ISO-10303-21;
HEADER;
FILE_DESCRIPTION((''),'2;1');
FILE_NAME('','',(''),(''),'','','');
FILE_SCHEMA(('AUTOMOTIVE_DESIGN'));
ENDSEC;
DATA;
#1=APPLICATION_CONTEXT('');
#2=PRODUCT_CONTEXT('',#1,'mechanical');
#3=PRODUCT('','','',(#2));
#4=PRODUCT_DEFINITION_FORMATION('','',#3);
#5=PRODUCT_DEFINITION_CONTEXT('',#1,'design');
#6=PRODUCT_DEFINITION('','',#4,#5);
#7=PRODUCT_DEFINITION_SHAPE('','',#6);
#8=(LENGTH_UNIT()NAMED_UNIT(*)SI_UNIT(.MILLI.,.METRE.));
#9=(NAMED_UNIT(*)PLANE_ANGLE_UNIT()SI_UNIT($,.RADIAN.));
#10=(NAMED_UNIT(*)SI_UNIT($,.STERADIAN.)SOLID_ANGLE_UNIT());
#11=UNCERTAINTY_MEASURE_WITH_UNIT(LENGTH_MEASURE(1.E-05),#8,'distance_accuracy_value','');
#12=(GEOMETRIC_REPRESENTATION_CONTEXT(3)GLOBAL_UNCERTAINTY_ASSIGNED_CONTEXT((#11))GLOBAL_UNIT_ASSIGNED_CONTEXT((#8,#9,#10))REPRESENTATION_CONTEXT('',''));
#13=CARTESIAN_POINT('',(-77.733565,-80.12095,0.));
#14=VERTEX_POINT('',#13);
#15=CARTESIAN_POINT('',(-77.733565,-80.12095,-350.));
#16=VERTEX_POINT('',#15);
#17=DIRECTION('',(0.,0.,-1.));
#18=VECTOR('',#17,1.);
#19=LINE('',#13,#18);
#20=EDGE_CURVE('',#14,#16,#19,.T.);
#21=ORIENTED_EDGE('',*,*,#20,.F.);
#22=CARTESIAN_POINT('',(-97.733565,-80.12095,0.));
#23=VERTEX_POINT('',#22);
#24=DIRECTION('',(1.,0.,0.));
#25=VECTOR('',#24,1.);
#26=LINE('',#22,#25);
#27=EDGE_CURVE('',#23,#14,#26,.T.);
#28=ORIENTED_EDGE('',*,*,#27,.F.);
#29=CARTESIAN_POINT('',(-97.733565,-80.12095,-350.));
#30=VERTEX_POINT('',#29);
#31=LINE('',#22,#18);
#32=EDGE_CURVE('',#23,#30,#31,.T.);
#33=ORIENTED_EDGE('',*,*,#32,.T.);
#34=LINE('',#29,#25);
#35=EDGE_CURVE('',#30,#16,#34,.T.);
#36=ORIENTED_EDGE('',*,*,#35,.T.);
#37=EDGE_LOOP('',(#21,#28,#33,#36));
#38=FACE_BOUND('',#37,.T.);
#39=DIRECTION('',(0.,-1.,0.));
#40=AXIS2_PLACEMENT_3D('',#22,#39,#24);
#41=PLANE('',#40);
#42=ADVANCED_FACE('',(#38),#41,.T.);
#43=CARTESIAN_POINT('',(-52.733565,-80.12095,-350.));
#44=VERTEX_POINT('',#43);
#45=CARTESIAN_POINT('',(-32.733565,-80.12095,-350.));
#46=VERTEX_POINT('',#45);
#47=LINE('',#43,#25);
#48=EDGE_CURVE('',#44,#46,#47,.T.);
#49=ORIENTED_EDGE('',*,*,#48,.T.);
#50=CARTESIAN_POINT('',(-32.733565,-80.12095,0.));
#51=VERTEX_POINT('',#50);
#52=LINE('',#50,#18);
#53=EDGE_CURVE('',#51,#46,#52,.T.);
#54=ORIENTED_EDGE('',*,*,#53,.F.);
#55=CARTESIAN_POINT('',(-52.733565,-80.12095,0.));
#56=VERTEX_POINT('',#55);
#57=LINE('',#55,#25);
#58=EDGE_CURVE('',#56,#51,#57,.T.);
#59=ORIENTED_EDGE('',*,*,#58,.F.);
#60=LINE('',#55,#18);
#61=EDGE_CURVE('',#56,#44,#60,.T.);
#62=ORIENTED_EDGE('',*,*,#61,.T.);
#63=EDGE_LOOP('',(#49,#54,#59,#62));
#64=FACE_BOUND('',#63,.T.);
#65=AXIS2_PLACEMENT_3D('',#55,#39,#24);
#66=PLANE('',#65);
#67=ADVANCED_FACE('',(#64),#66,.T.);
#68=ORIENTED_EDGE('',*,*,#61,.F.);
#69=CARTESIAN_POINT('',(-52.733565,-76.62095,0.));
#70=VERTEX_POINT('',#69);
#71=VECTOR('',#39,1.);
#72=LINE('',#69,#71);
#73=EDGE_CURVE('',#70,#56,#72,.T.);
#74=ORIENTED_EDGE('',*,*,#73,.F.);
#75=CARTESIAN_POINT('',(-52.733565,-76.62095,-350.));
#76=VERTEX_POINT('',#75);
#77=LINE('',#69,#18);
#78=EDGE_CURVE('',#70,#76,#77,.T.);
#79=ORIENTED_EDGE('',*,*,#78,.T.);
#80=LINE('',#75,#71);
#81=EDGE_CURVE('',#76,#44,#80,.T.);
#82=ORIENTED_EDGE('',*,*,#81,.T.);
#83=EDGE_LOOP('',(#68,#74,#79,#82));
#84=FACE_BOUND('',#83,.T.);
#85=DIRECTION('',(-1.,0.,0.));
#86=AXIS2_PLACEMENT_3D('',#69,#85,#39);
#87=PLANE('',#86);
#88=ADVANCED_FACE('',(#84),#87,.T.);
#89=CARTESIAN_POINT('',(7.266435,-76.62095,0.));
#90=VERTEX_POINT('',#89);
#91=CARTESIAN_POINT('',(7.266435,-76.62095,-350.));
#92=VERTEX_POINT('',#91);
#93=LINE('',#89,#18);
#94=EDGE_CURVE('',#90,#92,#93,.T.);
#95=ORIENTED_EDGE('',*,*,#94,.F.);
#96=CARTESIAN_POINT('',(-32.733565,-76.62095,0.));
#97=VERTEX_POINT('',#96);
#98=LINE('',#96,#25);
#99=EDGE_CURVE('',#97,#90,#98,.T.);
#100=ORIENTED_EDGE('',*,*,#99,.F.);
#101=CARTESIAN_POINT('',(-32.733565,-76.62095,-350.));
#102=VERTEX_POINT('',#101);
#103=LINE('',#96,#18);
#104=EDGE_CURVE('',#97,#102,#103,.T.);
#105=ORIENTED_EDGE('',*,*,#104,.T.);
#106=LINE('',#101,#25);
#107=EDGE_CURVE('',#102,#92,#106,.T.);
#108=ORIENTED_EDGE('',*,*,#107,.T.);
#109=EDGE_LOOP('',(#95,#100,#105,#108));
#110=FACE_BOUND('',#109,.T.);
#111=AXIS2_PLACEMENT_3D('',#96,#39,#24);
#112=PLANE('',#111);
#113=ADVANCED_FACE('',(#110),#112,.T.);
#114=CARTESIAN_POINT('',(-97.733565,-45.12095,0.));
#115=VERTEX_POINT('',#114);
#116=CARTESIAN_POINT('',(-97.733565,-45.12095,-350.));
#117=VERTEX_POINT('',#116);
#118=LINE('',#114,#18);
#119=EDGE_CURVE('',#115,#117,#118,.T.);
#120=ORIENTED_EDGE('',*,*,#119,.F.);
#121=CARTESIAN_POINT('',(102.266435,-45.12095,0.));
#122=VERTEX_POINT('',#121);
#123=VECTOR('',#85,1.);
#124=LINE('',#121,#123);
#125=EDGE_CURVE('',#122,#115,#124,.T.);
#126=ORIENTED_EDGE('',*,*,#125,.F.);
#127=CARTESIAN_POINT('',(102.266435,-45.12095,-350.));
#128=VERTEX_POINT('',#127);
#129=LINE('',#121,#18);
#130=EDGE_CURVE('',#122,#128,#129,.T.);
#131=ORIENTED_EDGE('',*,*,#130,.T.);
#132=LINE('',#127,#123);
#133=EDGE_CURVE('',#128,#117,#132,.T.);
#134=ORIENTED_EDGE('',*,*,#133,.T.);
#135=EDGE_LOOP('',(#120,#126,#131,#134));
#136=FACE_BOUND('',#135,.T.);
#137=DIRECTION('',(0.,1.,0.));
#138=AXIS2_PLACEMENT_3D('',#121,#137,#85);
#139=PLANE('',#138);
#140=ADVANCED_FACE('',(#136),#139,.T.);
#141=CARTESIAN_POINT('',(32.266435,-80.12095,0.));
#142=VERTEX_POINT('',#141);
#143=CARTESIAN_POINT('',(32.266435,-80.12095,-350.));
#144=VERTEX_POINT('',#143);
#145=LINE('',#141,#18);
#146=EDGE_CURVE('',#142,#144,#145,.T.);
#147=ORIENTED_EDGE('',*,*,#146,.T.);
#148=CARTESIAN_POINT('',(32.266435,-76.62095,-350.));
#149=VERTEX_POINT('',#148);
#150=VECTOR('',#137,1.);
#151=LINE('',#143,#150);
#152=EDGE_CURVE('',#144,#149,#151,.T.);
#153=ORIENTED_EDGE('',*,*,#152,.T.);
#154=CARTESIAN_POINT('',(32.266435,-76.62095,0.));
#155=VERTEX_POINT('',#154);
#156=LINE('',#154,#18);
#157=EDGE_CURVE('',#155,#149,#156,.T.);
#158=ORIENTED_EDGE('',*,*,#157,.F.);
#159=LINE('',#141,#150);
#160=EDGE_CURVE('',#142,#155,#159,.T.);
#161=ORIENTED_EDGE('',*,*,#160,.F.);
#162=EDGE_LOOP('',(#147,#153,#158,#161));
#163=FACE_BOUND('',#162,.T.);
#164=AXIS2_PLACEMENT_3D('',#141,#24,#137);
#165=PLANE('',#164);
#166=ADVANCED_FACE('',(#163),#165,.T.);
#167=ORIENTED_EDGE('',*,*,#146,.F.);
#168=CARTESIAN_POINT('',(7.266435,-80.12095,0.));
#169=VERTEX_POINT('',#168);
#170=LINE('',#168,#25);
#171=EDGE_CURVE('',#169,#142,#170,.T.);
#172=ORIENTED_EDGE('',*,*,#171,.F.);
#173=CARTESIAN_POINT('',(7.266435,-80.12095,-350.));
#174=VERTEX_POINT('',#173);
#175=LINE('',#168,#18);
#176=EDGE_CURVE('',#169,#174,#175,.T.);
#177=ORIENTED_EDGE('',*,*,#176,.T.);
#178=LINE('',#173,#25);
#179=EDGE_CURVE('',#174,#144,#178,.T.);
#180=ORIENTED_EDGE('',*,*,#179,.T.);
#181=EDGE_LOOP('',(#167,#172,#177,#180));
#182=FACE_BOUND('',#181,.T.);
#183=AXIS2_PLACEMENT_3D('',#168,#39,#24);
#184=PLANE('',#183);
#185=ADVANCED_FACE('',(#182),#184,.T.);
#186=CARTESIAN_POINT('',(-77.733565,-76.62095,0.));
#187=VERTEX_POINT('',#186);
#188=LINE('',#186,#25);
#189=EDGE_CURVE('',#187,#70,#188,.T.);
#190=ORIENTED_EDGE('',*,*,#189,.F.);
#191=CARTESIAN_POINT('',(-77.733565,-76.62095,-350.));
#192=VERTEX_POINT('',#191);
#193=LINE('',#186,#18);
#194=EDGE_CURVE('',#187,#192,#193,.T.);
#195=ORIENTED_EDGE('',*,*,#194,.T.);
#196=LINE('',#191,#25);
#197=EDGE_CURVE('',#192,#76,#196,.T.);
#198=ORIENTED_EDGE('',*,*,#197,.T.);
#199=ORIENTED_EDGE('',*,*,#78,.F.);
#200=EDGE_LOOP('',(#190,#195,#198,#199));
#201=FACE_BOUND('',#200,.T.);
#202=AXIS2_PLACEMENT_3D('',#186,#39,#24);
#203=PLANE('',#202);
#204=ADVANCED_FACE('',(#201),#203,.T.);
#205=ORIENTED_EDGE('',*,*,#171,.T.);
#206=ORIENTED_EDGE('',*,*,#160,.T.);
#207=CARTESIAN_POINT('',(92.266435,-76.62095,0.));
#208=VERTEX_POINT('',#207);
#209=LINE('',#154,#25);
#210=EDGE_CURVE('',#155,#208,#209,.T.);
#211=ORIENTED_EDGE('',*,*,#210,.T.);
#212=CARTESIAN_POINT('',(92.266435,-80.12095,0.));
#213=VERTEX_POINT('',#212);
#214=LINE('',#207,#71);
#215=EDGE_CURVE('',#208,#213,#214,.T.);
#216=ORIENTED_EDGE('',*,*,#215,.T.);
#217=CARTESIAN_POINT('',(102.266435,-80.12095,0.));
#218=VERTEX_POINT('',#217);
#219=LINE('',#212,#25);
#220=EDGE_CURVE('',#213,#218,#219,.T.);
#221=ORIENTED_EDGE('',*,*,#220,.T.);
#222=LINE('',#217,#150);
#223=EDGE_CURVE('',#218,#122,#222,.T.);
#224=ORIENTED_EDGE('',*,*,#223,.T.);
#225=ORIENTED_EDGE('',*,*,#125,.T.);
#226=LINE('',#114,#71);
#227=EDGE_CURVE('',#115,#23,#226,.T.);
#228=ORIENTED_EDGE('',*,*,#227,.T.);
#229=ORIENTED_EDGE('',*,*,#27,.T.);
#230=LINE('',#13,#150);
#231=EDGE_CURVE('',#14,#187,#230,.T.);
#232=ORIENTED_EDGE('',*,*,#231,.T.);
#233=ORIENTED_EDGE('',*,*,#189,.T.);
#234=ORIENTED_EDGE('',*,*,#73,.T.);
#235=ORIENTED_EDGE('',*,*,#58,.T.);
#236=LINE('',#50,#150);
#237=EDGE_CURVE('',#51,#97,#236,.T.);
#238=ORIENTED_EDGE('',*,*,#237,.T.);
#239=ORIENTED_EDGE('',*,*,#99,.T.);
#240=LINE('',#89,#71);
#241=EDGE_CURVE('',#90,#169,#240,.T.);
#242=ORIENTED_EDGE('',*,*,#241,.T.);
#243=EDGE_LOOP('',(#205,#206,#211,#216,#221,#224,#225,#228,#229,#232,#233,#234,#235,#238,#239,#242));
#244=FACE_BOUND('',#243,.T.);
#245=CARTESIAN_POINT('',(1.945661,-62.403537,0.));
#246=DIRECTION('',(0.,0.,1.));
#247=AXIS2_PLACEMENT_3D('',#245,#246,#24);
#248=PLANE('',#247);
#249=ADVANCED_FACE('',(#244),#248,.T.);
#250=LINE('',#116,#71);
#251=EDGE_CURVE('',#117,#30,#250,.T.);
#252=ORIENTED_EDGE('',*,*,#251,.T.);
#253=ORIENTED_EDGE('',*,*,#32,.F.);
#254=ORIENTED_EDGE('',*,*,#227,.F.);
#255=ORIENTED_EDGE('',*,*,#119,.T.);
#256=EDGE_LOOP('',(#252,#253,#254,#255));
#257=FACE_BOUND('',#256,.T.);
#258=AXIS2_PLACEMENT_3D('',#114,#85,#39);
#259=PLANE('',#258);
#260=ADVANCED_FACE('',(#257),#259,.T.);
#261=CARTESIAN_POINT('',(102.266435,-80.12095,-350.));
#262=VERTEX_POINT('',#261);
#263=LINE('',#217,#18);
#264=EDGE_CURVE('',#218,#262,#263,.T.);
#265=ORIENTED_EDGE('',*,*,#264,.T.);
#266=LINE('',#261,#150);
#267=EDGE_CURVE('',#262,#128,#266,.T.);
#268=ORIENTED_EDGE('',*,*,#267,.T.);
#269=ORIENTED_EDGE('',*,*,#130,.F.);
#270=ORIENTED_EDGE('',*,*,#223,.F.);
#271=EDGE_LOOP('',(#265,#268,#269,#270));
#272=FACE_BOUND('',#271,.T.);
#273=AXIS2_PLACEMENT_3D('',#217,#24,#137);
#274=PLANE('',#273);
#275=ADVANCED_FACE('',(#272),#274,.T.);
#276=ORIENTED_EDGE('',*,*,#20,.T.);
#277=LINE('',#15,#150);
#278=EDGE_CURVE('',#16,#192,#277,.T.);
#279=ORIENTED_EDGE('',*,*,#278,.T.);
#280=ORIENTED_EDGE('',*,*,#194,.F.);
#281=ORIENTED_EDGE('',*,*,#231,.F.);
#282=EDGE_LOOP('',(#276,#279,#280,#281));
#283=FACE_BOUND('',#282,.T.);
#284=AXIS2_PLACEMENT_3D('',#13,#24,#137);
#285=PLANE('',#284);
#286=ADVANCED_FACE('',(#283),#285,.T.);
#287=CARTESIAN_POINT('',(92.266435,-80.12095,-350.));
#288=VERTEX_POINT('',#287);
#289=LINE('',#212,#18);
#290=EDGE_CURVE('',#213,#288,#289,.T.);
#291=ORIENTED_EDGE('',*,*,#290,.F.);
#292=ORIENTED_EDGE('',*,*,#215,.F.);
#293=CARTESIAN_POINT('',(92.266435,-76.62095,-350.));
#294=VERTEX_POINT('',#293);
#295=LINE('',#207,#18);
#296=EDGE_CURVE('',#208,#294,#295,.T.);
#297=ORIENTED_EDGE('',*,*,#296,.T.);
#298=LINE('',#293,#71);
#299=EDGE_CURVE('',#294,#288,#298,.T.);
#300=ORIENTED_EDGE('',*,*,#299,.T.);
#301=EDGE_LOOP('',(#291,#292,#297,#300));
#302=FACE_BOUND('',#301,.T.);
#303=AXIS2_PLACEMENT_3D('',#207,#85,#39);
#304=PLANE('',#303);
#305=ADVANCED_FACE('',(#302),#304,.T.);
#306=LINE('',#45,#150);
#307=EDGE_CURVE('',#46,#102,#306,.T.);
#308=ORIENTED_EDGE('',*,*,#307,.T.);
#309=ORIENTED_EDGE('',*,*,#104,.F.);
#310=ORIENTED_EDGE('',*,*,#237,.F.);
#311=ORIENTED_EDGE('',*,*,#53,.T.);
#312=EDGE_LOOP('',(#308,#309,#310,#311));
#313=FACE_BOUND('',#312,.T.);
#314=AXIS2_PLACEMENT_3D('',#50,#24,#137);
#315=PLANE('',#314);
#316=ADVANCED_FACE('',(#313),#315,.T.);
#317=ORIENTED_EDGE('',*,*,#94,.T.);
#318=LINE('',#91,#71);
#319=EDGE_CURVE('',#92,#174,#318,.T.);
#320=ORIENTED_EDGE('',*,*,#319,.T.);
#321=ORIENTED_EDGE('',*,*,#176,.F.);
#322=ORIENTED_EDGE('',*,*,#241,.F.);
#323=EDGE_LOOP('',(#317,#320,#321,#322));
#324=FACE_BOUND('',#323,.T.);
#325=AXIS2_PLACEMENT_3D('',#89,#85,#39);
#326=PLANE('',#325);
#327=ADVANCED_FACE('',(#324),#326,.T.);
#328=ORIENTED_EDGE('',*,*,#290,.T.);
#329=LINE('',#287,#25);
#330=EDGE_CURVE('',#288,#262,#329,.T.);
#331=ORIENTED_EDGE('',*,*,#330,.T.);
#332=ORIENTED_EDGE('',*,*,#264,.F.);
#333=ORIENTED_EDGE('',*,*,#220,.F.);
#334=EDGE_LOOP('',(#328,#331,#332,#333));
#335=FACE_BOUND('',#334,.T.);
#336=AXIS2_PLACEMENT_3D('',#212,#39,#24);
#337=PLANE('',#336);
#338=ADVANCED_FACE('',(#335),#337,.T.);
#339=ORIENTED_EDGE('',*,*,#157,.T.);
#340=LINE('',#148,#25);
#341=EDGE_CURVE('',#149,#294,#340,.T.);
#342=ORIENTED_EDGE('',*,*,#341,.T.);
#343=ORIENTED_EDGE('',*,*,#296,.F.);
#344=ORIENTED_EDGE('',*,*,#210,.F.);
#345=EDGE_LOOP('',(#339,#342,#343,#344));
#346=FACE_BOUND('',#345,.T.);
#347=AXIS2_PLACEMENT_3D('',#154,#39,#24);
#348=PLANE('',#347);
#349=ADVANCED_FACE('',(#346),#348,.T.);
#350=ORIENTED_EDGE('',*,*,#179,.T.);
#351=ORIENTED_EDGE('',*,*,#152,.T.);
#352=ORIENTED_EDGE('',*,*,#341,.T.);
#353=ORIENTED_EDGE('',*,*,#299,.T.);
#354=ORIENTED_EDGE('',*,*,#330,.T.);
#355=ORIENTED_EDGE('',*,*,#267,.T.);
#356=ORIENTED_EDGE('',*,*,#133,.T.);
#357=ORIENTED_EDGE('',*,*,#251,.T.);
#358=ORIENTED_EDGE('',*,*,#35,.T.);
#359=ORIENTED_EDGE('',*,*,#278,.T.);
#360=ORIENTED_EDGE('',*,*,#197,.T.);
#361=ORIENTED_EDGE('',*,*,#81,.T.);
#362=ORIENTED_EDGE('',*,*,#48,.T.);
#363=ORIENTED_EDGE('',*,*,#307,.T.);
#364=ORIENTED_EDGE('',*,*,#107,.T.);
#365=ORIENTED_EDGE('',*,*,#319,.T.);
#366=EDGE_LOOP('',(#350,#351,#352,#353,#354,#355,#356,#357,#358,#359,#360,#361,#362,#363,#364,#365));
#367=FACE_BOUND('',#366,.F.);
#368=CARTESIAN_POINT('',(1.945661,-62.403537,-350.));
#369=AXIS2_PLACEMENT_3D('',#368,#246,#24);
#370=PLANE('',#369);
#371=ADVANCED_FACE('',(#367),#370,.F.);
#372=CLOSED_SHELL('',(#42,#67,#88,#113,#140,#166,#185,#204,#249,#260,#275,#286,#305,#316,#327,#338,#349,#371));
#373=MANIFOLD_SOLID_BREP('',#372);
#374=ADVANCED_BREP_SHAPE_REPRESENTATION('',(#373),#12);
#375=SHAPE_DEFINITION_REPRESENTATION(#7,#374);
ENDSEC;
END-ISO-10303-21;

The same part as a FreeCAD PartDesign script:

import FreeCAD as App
import Part
import Sketcher
from FreeCAD import Vector
Q = App.Units.Quantity


def add_polygon(sketch, points):
    """Adds a closed chain of lines whose ends are joined by coincident constraints."""
    first, n = sketch.GeometryCount, len(points)
    for a, b in zip(points, points[1:] + points[:1]):
        sketch.addGeometry(Part.LineSegment(App.Vector(*a, 0), App.Vector(*b, 0)), False)
    for i in range(n):
        sketch.addConstraint(Sketcher.Constraint("Coincident", first + i, 2, first + (i + 1) % n, 1))

doc = App.newDocument("Part")
body = doc.addObject("PartDesign::Body", "Body")

sketch1 = body.newObject("Sketcher::SketchObject", "Sketch")
sketch1.AttachmentSupport = (doc.getObject("XY_Plane"), [""])
sketch1.MapMode = "FlatFace"
add_polygon(sketch1, [(102.3, -45.1), (-97.7, -45.1), (-97.7, -80.1), (-77.7, -80.1), (-77.7, -76.6), (-52.7, -76.6), (-52.7, -80.1), (-32.7, -80.1), (-32.7, -76.6), (7.3, -76.6), (7.3, -80.1), (32.3, -80.1), (32.3, -76.6), (92.3, -76.6), (92.3, -80.1), (102.3, -80.1)])
sketch1.addConstraint([
    Sketcher.Constraint("Horizontal", 0),
    Sketcher.Constraint("Vertical", 1),
    Sketcher.Constraint("Horizontal", 2),
    Sketcher.Constraint("Vertical", 3),
    Sketcher.Constraint("Horizontal", 4),
    Sketcher.Constraint("Vertical", 5),
    Sketcher.Constraint("Horizontal", 6),
    Sketcher.Constraint("Vertical", 7),
    Sketcher.Constraint("Horizontal", 8),
    Sketcher.Constraint("Vertical", 9),
    Sketcher.Constraint("Horizontal", 10),
    Sketcher.Constraint("Vertical", 11),
    Sketcher.Constraint("Horizontal", 12),
    Sketcher.Constraint("Vertical", 13),
    Sketcher.Constraint("Horizontal", 14),
    Sketcher.Constraint("Vertical", 15),
    Sketcher.Constraint("Horizontal", 2, 2, 5, 2),
    Sketcher.Constraint("Horizontal", 4, 2, 7, 2),
    Sketcher.Constraint("Horizontal", 6, 2, 9, 2),
    Sketcher.Constraint("Horizontal", 8, 2, 11, 2),
    Sketcher.Constraint("Horizontal", 10, 2, 13, 2),
    Sketcher.Constraint("Equal", 2, 6),
    Sketcher.Constraint("Equal", 4, 10),
    Sketcher.Constraint("DistanceX", 0, 2, 0, 1, Q("200 mm")),
    Sketcher.Constraint("DistanceX", 2, 1, 2, 2, Q("20 mm")),
    Sketcher.Constraint("DistanceX", 4, 1, 4, 2, Q("25 mm")),
    Sketcher.Constraint("DistanceX", 8, 1, 8, 2, Q("40 mm")),
    Sketcher.Constraint("DistanceX", 12, 1, 12, 2, Q("60 mm")),
    Sketcher.Constraint("DistanceY", 1, 2, 1, 1, Q("35 mm")),
    Sketcher.Constraint("DistanceY", 3, 1, 3, 2, Q("3.5 mm")),
    Sketcher.Constraint("DistanceY", 0, 2, -1, 1, Q("45.12095 mm")),
    Sketcher.Constraint("DistanceX", 0, 2, -1, 1, Q("97.733565 mm")),
])
pad1 = body.newObject("PartDesign::Pad", "Pad")
pad1.Profile = sketch1
pad1.Length = 350
pad1.Reversed = True

doc.recompute()
